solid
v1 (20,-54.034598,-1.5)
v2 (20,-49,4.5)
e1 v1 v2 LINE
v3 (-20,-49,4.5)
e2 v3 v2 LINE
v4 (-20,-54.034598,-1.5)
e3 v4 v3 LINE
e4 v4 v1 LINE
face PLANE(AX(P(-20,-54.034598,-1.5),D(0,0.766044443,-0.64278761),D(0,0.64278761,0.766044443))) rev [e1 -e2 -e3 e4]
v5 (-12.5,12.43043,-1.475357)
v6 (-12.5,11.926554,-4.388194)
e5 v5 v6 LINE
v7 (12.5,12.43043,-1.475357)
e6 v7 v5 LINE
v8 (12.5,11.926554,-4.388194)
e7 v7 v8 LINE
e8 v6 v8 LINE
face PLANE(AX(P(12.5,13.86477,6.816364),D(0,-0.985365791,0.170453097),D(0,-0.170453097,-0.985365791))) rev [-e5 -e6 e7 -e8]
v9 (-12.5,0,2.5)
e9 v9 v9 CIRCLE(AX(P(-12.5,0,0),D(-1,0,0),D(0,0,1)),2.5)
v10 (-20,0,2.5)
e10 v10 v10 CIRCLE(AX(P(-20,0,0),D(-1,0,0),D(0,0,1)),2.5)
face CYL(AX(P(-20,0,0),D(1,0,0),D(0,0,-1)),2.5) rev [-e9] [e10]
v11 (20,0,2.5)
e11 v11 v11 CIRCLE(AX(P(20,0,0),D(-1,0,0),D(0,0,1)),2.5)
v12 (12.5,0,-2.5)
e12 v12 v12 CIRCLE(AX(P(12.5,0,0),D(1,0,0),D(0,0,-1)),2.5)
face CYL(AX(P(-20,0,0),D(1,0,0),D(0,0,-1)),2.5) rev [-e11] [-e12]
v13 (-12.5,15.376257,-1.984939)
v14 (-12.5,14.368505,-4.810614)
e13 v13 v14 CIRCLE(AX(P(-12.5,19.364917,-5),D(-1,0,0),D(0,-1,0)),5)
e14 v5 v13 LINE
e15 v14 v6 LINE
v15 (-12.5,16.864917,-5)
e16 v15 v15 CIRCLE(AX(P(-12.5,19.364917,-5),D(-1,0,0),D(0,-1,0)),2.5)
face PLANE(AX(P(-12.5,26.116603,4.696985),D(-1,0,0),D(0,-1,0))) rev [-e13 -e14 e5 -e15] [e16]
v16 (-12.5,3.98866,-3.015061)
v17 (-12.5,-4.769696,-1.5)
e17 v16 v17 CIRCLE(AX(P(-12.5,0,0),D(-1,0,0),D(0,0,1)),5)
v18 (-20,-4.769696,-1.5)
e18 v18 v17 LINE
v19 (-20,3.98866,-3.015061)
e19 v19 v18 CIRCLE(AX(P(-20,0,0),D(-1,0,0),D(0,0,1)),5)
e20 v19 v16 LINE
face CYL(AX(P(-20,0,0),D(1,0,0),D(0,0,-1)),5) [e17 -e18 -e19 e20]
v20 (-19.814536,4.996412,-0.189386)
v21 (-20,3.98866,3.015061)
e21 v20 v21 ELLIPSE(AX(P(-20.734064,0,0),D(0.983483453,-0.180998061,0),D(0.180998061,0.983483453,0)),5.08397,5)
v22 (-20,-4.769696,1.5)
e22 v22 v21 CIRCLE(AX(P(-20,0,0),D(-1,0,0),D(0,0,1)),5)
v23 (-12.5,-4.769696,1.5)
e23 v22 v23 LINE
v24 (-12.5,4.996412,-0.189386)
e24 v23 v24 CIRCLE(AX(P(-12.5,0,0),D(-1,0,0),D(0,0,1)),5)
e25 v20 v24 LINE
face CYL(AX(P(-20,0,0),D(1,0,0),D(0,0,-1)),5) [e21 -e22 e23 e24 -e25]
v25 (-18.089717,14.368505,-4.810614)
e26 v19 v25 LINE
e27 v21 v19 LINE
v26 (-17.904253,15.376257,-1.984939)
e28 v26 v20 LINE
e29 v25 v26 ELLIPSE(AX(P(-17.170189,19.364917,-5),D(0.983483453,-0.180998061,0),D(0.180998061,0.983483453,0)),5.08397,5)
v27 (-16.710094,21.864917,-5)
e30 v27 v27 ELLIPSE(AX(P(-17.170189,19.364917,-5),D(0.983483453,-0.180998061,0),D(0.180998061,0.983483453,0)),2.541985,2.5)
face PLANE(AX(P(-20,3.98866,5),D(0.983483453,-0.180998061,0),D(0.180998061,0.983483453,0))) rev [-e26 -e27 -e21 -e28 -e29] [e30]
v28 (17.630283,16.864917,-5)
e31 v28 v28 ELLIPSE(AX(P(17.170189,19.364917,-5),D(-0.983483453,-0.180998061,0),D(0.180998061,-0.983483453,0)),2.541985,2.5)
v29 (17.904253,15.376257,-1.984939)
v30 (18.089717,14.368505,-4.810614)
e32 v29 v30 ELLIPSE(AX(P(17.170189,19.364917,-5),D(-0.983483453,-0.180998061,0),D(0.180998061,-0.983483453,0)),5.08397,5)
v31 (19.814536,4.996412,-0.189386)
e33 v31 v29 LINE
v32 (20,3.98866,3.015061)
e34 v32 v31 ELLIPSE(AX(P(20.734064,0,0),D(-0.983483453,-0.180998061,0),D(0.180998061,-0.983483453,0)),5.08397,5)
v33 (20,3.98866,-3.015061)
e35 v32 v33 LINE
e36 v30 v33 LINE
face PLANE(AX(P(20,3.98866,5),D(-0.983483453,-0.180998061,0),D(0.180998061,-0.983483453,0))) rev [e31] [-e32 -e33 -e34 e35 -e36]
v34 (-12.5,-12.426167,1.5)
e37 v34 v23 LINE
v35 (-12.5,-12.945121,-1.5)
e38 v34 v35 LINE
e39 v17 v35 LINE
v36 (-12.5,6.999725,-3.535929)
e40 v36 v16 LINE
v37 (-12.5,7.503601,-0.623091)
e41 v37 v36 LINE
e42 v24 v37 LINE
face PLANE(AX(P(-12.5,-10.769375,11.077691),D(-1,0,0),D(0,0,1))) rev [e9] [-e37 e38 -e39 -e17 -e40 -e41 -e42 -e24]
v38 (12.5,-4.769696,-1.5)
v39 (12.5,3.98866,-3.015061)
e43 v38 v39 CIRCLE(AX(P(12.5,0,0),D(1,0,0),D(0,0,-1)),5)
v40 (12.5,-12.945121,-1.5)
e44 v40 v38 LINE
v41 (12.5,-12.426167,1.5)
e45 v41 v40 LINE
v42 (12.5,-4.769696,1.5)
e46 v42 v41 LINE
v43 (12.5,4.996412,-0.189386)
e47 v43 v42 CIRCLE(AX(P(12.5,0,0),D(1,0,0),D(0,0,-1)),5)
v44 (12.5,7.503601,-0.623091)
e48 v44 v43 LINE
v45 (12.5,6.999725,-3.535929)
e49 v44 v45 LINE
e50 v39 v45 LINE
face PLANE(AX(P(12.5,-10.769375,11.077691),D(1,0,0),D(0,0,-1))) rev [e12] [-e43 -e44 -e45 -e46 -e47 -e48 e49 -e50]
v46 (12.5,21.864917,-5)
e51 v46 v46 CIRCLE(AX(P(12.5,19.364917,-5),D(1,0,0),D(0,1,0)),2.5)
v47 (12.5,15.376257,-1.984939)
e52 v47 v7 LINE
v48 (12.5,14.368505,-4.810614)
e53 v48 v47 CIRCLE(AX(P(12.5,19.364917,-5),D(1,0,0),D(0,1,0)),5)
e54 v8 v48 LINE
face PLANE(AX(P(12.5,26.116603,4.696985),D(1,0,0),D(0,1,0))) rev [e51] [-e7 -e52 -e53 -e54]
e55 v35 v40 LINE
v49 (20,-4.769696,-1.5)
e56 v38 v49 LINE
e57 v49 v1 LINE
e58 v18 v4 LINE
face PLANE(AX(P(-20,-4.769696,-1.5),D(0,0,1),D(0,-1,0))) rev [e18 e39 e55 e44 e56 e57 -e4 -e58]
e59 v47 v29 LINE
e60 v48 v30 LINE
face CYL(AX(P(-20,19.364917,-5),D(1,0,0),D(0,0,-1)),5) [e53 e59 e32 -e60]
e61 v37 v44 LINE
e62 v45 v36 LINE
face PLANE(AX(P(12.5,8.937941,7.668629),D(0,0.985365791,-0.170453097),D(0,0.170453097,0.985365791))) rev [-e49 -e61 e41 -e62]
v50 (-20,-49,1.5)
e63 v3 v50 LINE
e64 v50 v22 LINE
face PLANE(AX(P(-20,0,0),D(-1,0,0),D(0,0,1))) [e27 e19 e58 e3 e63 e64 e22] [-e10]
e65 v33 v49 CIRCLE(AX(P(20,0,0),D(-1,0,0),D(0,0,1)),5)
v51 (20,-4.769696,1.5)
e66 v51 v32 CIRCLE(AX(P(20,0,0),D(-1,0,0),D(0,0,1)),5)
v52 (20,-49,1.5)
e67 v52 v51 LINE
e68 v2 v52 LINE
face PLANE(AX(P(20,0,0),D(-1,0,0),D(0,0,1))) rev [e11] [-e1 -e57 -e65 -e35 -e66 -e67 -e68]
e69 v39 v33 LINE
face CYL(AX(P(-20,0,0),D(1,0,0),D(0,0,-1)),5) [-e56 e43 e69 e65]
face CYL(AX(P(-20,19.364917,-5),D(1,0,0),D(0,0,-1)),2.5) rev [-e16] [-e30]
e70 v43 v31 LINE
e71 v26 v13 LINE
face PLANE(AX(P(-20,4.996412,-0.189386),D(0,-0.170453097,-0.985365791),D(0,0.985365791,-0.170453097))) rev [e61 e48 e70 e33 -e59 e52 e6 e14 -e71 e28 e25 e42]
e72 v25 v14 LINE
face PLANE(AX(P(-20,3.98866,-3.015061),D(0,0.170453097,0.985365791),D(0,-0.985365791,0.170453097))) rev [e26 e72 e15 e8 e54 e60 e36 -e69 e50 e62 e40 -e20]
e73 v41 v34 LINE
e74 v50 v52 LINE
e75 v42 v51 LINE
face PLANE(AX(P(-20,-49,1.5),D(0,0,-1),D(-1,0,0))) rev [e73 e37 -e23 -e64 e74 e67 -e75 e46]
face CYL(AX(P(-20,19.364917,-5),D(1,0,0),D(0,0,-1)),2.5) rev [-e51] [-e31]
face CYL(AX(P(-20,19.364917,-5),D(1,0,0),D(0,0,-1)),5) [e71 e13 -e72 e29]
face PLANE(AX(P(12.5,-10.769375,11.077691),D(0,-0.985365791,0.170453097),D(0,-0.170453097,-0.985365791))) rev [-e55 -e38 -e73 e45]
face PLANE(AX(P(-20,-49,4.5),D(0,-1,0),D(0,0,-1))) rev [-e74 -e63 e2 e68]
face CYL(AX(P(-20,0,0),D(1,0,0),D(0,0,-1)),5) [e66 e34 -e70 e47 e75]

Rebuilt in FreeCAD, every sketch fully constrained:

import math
import FreeCAD as App
import Part
import Sketcher
from FreeCAD import Vector
Q = App.Units.Quantity

doc = App.newDocument("Part")
params = doc.addObject("Spreadsheet::Sheet", "Params")
for row, (alias, value) in enumerate([
    ("sketch1_diameter", "5 mm"),
    ("sketch1_radius", "5 mm"),
    ("sketch1_height", "3 mm"),
    ("pad1_length", "40 mm"),
    ("sketch2_width", "25 mm"),
    ("sketch2_height", "20 mm"),
    ("sketch3_width", "25 mm"),
    ("sketch4_width", "3.75 mm"),
], start=1):
    params.set(f"A{row}", alias)
    params.set(f"B{row}", "=" + value)
    params.setAlias(f"B{row}", alias)

body = doc.addObject("PartDesign::Body", "Body")

# Sketch on YZ plane
sketch1 = body.newObject("Sketcher::SketchObject", "Sketch")
sketch1.AttachmentSupport = (doc.getObject("YZ_Plane"), [""])
sketch1.MapMode = "FlatFace"
sketch1.addGeometry([
    Part.LineSegment(Vector(-54.034598, -1.5, 0), Vector(-49, 4.5, 0)),  # 0
    Part.LineSegment(Vector(-49, 4.5, 0), Vector(-49, 1.5, 0)),  # 1
    Part.LineSegment(Vector(-49, 1.5, 0), Vector(-4.769696, 1.5, 0)),  # 2
    Part.ArcOfCircle(Part.Circle(Vector(0, 0, 0), Vector(0, 0, 1), 5), math.radians(-2.170725), math.radians(162.542397)),  # 3
    Part.LineSegment(Vector(4.996412, -0.189386, 0), Vector(15.376257, -1.984939, 0)),  # 4
    Part.ArcOfCircle(Part.Circle(Vector(19.364917, -5, 0), Vector(0, 0, 1), 5), math.radians(177.829275), math.radians(502.914069)),  # 5
    Part.LineSegment(Vector(14.368505, -4.810614, 0), Vector(3.98866, -3.015061, 0)),  # 6
    Part.ArcOfCircle(Part.Circle(Vector(0, 0, 0), Vector(0, 0, 1), 5), math.radians(-162.542397), math.radians(-37.085931)),  # 7
    Part.LineSegment(Vector(-4.769696, -1.5, 0), Vector(-54.034598, -1.5, 0)),  # 8
    Part.Circle(Vector(0, 0, 0), Vector(0, 0, 1), 2.5),  # 9
    Part.Circle(Vector(19.364917, -5, 0), Vector(0, 0, 1), 2.5),  # 10
], False)
sketch1.addConstraint([
    Sketcher.Constraint("Coincident", 0, 2, 1, 1),
    Sketcher.Constraint("Coincident", 1, 2, 2, 1),
    Sketcher.Constraint("Coincident", 2, 2, 3, 2),
    Sketcher.Constraint("Coincident", 3, 1, 4, 1),
    Sketcher.Constraint("Coincident", 4, 2, 5, 2),
    Sketcher.Constraint("Coincident", 5, 1, 6, 1),
    Sketcher.Constraint("Coincident", 6, 2, 7, 2),
    Sketcher.Constraint("Coincident", 7, 1, 8, 1),
    Sketcher.Constraint("Coincident", 8, 2, 0, 1),
    Sketcher.Constraint("Vertical", 1),
    Sketcher.Constraint("Horizontal", 2),
    Sketcher.Constraint("Horizontal", 8),
    Sketcher.Constraint("Coincident", 3, 3, -1, 1),
    Sketcher.Constraint("Coincident", 7, 3, -1, 1),
    Sketcher.Constraint("Coincident", 9, 3, -1, 1),
    Sketcher.Constraint("Coincident", 10, 3, 5, 3),
    Sketcher.Constraint("Equal", 3, 5),
    Sketcher.Constraint("Equal", 5, 7),
    Sketcher.Constraint("Equal", 9, 10),
    Sketcher.Constraint("Parallel", 4, 6),
    Sketcher.Constraint("Vertical", 2, 2, 7, 1),
    Sketcher.Constraint("Equal", 4, 6),
    Sketcher.Constraint("Diameter", 9, Q("5 mm")),
    Sketcher.Constraint("Radius", 3, Q("5 mm")),
    Sketcher.Constraint("DistanceY", 1, 2, 1, 1, Q("3 mm")),
    Sketcher.Constraint("Angle", 0, Q("50 deg")),
    Sketcher.Constraint("DistanceY", 5, 3, -1, 1, Q("5 mm")),
    Sketcher.Constraint("DistanceX", 0, 2, -1, 1, Q("49 mm")),
    Sketcher.Constraint("DistanceY", 7, 1, 2, 2, Q("3 mm")),
    Sketcher.Constraint("Distance", 4, Q("10.534001 mm")),
    Sketcher.Constraint("DistanceX", -1, 1, 3, 1, Q("4.996412 mm")),
    Sketcher.Constraint("DistanceY", 4, 2, -1, 1, Q("1.984939 mm")),
])
sketch1.setExpression("Constraints[22]", "Params.sketch1_diameter")
sketch1.setExpression("Constraints[23]", "Params.sketch1_radius")
sketch1.setExpression("Constraints[24]", "Params.sketch1_height")
pad1 = body.newObject("PartDesign::Pad", "Pad")
pad1.Profile = sketch1
pad1.setExpression("Length", "Params.pad1_length")
pad1.Midplane = True

# Sketch on an angled plane
sketch2 = body.newObject("Sketcher::SketchObject", "Sketch001")
sketch2.Placement = App.Placement(Vector(0, -0.390518, -2.25753), App.Rotation(Vector(-1, 0, 0), Vector(0, 0.985365791, -0.170453097), Vector(0, -0.170453097, -0.985365791), "ZXY"))
sketch2.addGeometry([
    Part.LineSegment(Vector(-12.5, 7.5, 0), Vector(-12.5, -12.5, 0)),
    Part.LineSegment(Vector(-12.5, -12.5, 0), Vector(12.5, -12.5, 0)),
    Part.LineSegment(Vector(12.5, -12.5, 0), Vector(12.5, 7.5, 0)),
    Part.LineSegment(Vector(12.5, 7.5, 0), Vector(-12.5, 7.5, 0)),
], False)
sketch2.addConstraint([
    Sketcher.Constraint("Coincident", 0, 2, 1, 1),
    Sketcher.Constraint("Coincident", 1, 2, 2, 1),
    Sketcher.Constraint("Coincident", 2, 2, 3, 1),
    Sketcher.Constraint("Coincident", 3, 2, 0, 1),
    Sketcher.Constraint("Vertical", 0),
    Sketcher.Constraint("Horizontal", 1),
    Sketcher.Constraint("Vertical", 2),
    Sketcher.Constraint("Horizontal", 3),
    Sketcher.Constraint("DistanceX", 1, 1, 1, 2, Q("25 mm")),
    Sketcher.Constraint("DistanceY", 0, 2, 0, 1, Q("20 mm")),
    Sketcher.Constraint("DistanceX", 0, 2, -1, 1, Q("12.5 mm")),
    Sketcher.Constraint("DistanceY", 0, 2, -1, 1, Q("12.5 mm")),
])
sketch2.setExpression("Constraints[8]", "Params.sketch2_width")
sketch2.setExpression("Constraints[9]", "Params.sketch2_height")
pocket1 = body.newObject("PartDesign::Pocket", "Pocket")
pocket1.Profile = sketch2
pocket1.Type = "ThroughAll"
pocket1.Midplane = True

# Sketch on an angled plane
sketch3 = body.newObject("Sketcher::SketchObject", "Sketch002")
sketch3.Placement = App.Placement(Vector(0, -0.390518, -2.25753), App.Rotation(Vector(-1, 0, 0), Vector(0, 0.985365791, -0.170453097), Vector(0, -0.170453097, -0.985365791), "ZXY"))
sketch3.addGeometry([
    Part.LineSegment(Vector(-12.5, 24.933792, 0), Vector(-12.5, 12.5, 0)),
    Part.LineSegment(Vector(-12.5, 12.5, 0), Vector(12.5, 12.5, 0)),
    Part.LineSegment(Vector(12.5, 12.5, 0), Vector(12.5, 24.933792, 0)),
    Part.LineSegment(Vector(12.5, 24.933792, 0), Vector(-12.5, 24.933792, 0)),
], False)
sketch3.addConstraint([
    Sketcher.Constraint("Coincident", 0, 2, 1, 1),
    Sketcher.Constraint("Coincident", 1, 2, 2, 1),
    Sketcher.Constraint("Coincident", 2, 2, 3, 1),
    Sketcher.Constraint("Coincident", 3, 2, 0, 1),
    Sketcher.Constraint("Vertical", 0),
    Sketcher.Constraint("Horizontal", 1),
    Sketcher.Constraint("Vertical", 2),
    Sketcher.Constraint("Horizontal", 3),
    Sketcher.Constraint("DistanceX", 1, 1, 1, 2, Q("25 mm")),
    Sketcher.Constraint("DistanceX", 0, 2, -1, 1, Q("12.5 mm")),
    Sketcher.Constraint("DistanceY", -1, 1, 0, 2, Q("12.5 mm")),
    Sketcher.Constraint("DistanceY", 0, 2, 0, 1, Q("12.433792 mm")),
])
sketch3.setExpression("Constraints[8]", "Params.sketch3_width")
pocket2 = body.newObject("PartDesign::Pocket", "Pocket001")
pocket2.Profile = sketch3
pocket2.Type = "ThroughAll"
pocket2.Midplane = True

# Sketch on XY plane
sketch4 = body.newObject("Sketcher::SketchObject", "Sketch003")
sketch4.AttachmentSupport = (doc.getObject("XY_Plane"), [""])
sketch4.MapMode = "FlatFace"
sketch4.AttachmentOffset = App.Placement(Vector(0, 0, -1.5), App.Rotation())
sketch4.addGeometry([
    Part.LineSegment(Vector(20, 3.98866, 0), Vector(16.25, 24.364917, 0)),  # 0
    Part.LineSegment(Vector(16.25, 24.364917, 0), Vector(20, 24.364917, 0)),  # 1
    Part.LineSegment(Vector(20, 24.364917, 0), Vector(20, 3.98866, 0)),  # 2
    Part.LineSegment(Vector(-20, 3.98866, 0), Vector(-20, 24.364917, 0)),  # 3
    Part.LineSegment(Vector(-20, 24.364917, 0), Vector(-16.25, 24.364917, 0)),  # 4
    Part.LineSegment(Vector(-16.25, 24.364917, 0), Vector(-20, 3.98866, 0)),  # 5
], False)
sketch4.addConstraint([
    Sketcher.Constraint("Coincident", 0, 2, 1, 1),
    Sketcher.Constraint("Coincident", 1, 2, 2, 1),
    Sketcher.Constraint("Coincident", 2, 2, 0, 1),
    Sketcher.Constraint("Coincident", 3, 2, 4, 1),
    Sketcher.Constraint("Coincident", 4, 2, 5, 1),
    Sketcher.Constraint("Coincident", 5, 2, 3, 1),
    Sketcher.Constraint("Horizontal", 1),
    Sketcher.Constraint("Vertical", 2),
    Sketcher.Constraint("Vertical", 3),
    Sketcher.Constraint("Horizontal", 4),
    Sketcher.Constraint("Symmetric", 1, 2, 3, 2, -2),
    Sketcher.Constraint("Horizontal", 2, 2, 5, 2),
    Sketcher.Constraint("Equal", 1, 4),
    Sketcher.Constraint("DistanceX", -1, 1, 1, 2, Q("20 mm")),
    Sketcher.Constraint("DistanceX", 1, 1, 1, 2, Q("3.75 mm")),
    Sketcher.Constraint("DistanceY", 2, 2, 2, 1, Q("20.376257 mm")),
    Sketcher.Constraint("DistanceY", -1, 1, 2, 2, Q("3.98866 mm")),
])
sketch4.setExpression("Constraints[14]", "Params.sketch4_width")
pocket3 = body.newObject("PartDesign::Pocket", "Pocket002")
pocket3.Profile = sketch4
pocket3.Type = "ThroughAll"
pocket3.Midplane = True

doc.recompute()
